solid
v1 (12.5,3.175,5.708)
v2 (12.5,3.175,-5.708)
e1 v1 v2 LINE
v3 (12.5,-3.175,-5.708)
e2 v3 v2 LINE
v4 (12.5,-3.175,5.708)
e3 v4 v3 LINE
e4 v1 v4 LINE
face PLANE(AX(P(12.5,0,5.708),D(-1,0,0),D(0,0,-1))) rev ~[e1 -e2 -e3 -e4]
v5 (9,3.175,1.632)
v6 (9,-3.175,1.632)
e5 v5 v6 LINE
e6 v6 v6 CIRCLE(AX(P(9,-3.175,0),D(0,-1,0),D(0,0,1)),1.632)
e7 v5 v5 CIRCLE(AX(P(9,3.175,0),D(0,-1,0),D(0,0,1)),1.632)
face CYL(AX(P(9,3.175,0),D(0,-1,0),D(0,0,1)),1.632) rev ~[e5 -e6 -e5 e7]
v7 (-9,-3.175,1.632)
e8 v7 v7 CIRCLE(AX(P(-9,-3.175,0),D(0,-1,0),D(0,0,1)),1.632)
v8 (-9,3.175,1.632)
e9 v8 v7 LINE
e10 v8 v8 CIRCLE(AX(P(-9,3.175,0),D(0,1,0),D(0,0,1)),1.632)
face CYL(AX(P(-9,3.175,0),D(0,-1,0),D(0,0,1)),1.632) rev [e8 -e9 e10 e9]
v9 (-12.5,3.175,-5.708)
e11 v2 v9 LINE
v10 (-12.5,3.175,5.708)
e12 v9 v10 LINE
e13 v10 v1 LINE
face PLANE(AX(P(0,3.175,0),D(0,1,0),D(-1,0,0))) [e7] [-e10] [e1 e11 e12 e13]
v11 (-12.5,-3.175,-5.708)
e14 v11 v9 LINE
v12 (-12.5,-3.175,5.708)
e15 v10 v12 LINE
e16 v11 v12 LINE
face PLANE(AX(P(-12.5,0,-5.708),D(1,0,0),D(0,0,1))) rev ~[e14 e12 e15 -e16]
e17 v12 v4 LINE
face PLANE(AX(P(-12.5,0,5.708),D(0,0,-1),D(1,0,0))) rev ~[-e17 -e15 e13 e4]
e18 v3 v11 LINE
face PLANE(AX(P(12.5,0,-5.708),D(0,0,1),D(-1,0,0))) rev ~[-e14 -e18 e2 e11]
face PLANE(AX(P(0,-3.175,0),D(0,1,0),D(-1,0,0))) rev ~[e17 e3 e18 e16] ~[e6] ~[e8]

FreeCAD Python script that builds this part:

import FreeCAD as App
import Part
import Sketcher
from FreeCAD import Vector
Q = App.Units.Quantity

doc = App.newDocument("Part")
body = doc.addObject("PartDesign::Body", "Body")

# Sketch on XZ plane
sketch1 = body.newObject("Sketcher::SketchObject", "Sketch")
sketch1.AttachmentSupport = (doc.getObject("XZ_Plane"), [""])
sketch1.MapMode = "FlatFace"
sketch1.addGeometry(Part.LineSegment(Vector(12, 6, 0), Vector(12, -6, 0)), False)
sketch1.addGeometry(Part.LineSegment(Vector(12, -6, 0), Vector(-12, -6, 0)), False)
sketch1.addGeometry(Part.LineSegment(Vector(-12, -6, 0), Vector(-12, 6, 0)), False)
sketch1.addGeometry(Part.LineSegment(Vector(-12, 6, 0), Vector(12, 6, 0)), False)
sketch1.addConstraint(Sketcher.Constraint("Coincident", 0, 2, 1, 1))
sketch1.addConstraint(Sketcher.Constraint("Coincident", 1, 2, 2, 1))
sketch1.addConstraint(Sketcher.Constraint("Coincident", 2, 2, 3, 1))
sketch1.addConstraint(Sketcher.Constraint("Coincident", 3, 2, 0, 1))
sketch1.addConstraint(Sketcher.Constraint("Vertical", 0))
sketch1.addConstraint(Sketcher.Constraint("Horizontal", 1))
sketch1.addConstraint(Sketcher.Constraint("Vertical", 2))
sketch1.addConstraint(Sketcher.Constraint("Horizontal", 3))
sketch1.addConstraint(Sketcher.Constraint("Symmetric", 0, 2, 2, 2, -1, 1))
sketch1.addConstraint(Sketcher.Constraint("DistanceX", 1, 2, 1, 1, Q("25 mm")))
sketch1.addConstraint(Sketcher.Constraint("DistanceY", 0, 2, 0, 1, Q("11.416 mm")))
pad1 = body.newObject("PartDesign::Pad", "Pad")
pad1.Profile = sketch1
pad1.Length = 6.35
pad1.Midplane = True

# Sketch on XZ plane
sketch2 = body.newObject("Sketcher::SketchObject", "Sketch001")
sketch2.AttachmentSupport = (doc.getObject("XZ_Plane"), [""])
sketch2.MapMode = "FlatFace"
sketch2.AttachmentOffset = App.Placement(Vector(0, 0, -3.175), App.Rotation())
sketch2.addGeometry(Part.Circle(Vector(9, 0, 0), Vector(0, 0, 1), 1.6), False)
sketch2.addConstraint(Sketcher.Constraint("PointOnObject", 0, 3, -1))
sketch2.addConstraint(Sketcher.Constraint("Diameter", 0, Q("3.264 mm")))
sketch2.addConstraint(Sketcher.Constraint("DistanceX", -1, 1, 0, 3, Q("9 mm")))
doc.recompute()
hole = body.newObject("PartDesign::Hole", "Hole")
hole.Profile = sketch2
hole.ThreadType = "None"
hole.Diameter = 3.264
hole.DepthType = "ThroughAll"
hole.Reversed = True
doc.recompute()

mirrored = body.newObject("PartDesign::Mirrored", "Mirrored")
mirrored.Originals = [hole]
mirrored.MirrorPlane = (doc.getObject("YZ_Plane"), [""])
body.Tip = mirrored

doc.recompute()
